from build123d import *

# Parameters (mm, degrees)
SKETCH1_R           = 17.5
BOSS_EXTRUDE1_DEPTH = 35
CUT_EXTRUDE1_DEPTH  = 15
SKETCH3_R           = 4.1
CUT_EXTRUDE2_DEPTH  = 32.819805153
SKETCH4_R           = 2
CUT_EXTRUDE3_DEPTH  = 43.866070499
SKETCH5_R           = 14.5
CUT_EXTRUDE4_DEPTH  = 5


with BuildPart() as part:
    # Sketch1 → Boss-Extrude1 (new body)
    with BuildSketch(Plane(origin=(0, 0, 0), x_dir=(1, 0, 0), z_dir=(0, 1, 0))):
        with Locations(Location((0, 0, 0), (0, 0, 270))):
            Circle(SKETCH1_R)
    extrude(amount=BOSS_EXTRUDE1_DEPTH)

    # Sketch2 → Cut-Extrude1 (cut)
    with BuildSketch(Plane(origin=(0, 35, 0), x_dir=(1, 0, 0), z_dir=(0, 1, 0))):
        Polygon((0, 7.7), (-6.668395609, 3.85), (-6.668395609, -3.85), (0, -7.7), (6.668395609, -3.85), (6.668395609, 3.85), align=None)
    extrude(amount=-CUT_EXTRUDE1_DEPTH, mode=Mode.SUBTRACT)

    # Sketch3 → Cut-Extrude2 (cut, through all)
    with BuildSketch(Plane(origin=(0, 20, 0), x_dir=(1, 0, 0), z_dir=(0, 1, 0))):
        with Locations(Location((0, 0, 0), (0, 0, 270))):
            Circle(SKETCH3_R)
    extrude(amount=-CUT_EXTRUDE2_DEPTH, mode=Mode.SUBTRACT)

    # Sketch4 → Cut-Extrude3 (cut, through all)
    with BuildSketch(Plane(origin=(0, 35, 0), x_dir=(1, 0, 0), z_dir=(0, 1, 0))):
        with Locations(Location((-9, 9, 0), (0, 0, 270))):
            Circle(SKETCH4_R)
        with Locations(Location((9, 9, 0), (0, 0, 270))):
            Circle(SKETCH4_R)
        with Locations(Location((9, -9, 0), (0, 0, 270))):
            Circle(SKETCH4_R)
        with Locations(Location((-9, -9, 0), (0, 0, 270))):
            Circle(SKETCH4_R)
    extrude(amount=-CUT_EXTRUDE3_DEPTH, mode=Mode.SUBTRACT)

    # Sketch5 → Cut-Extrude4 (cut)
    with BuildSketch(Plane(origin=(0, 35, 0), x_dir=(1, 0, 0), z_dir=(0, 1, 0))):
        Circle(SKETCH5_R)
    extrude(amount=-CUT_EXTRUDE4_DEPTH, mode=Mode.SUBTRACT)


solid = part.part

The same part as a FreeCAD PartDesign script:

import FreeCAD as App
import Part
import Sketcher
from FreeCAD import Vector
Q = App.Units.Quantity

doc = App.newDocument("Part")
body = doc.addObject("PartDesign::Body", "Body")

# Sketch on XZ plane
sketch1 = body.newObject("Sketcher::SketchObject", "Sketch")
sketch1.AttachmentSupport = (doc.getObject("XZ_Plane"), [""])
sketch1.MapMode = "FlatFace"
sketch1.addGeometry(Part.Circle(Vector(0, 0, 0), Vector(0, 0, 1), 17.5), False)
sketch1.addConstraint([
    Sketcher.Constraint("Coincident", 0, 3, -1, 1),
    Sketcher.Constraint("Diameter", 0, Q("35 mm")),
])
pad1 = body.newObject("PartDesign::Pad", "Pad")
pad1.Profile = sketch1
pad1.Length = 35
pad1.Reversed = True

# Sketch on XZ plane
sketch2 = body.newObject("Sketcher::SketchObject", "Sketch001")
sketch2.AttachmentSupport = (doc.getObject("XZ_Plane"), [""])
sketch2.MapMode = "FlatFace"
sketch2.AttachmentOffset = App.Placement(Vector(0, 0, -35), App.Rotation())
sketch2.addGeometry([
    Part.LineSegment(Vector(0, -7.7, 0), Vector(-6.668396, -3.85, 0)),  # 0
    Part.LineSegment(Vector(-6.668396, -3.85, 0), Vector(-6.668396, 3.85, 0)),  # 1
    Part.LineSegment(Vector(-6.668396, 3.85, 0), Vector(0, 7.7, 0)),  # 2
    Part.LineSegment(Vector(0, 7.7, 0), Vector(6.668396, 3.85, 0)),  # 3
    Part.LineSegment(Vector(6.668396, 3.85, 0), Vector(6.668396, -3.85, 0)),  # 4
    Part.LineSegment(Vector(6.668396, -3.85, 0), Vector(0, -7.7, 0)),  # 5
], False)
sketch2.addConstraint([
    Sketcher.Constraint("Coincident", 0, 2, 1, 1),
    Sketcher.Constraint("Coincident", 1, 2, 2, 1),
    Sketcher.Constraint("Coincident", 2, 2, 3, 1),
    Sketcher.Constraint("Coincident", 3, 2, 4, 1),
    Sketcher.Constraint("Coincident", 4, 2, 5, 1),
    Sketcher.Constraint("Coincident", 5, 2, 0, 1),
    Sketcher.Constraint("Vertical", 1),
    Sketcher.Constraint("Vertical", 4),
    Sketcher.Constraint("Symmetric", 0, 2, 3, 2, -1, 1),
    Sketcher.Constraint("Symmetric", 2, 2, 5, 2, -1, 1),
    Sketcher.Constraint("PointOnObject", 2, 2, -2),
    Sketcher.Constraint("Parallel", 2, 5),
    Sketcher.Constraint("Horizontal", 1, 2, 3, 2),
    Sketcher.Constraint("Angle", 0, Q("150 deg")),
    Sketcher.Constraint("DistanceY", 1, 1, 1, 2, Q("7.7 mm")),
    Sketcher.Constraint("Distance", 0, Q("7.7 mm")),
])
pocket1 = body.newObject("PartDesign::Pocket", "Pocket")
pocket1.Profile = sketch2
pocket1.Length = 15
pocket1.Reversed = True

# Sketch on XZ plane
sketch3 = body.newObject("Sketcher::SketchObject", "Sketch002")
sketch3.AttachmentSupport = (doc.getObject("XZ_Plane"), [""])
sketch3.MapMode = "FlatFace"
sketch3.AttachmentOffset = App.Placement(Vector(0, 0, -20), App.Rotation())
sketch3.addGeometry(Part.Circle(Vector(0, 0, 0), Vector(0, 0, 1), 4.1), False)
sketch3.addConstraint([
    Sketcher.Constraint("Coincident", 0, 3, -1, 1),
    Sketcher.Constraint("Diameter", 0, Q("8.2 mm")),
])
pocket2 = body.newObject("PartDesign::Pocket", "Pocket001")
pocket2.Profile = sketch3
pocket2.Type = "ThroughAll"
pocket2.Reversed = True

# Sketch on XZ plane
sketch4 = body.newObject("Sketcher::SketchObject", "Sketch003")
sketch4.AttachmentSupport = (doc.getObject("XZ_Plane"), [""])
sketch4.MapMode = "FlatFace"
sketch4.AttachmentOffset = App.Placement(Vector(0, 0, -35), App.Rotation())
sketch4.addGeometry([
    Part.Circle(Vector(-9, -9, 0), Vector(0, 0, 1), 2),
    Part.Circle(Vector(9, -9, 0), Vector(0, 0, 1), 2),
    Part.Circle(Vector(9, 9, 0), Vector(0, 0, 1), 2),
    Part.Circle(Vector(-9, 9, 0), Vector(0, 0, 1), 2),
], False)
sketch4.addConstraint([
    Sketcher.Constraint("Equal", 0, 1),
    Sketcher.Constraint("Equal", 1, 2),
    Sketcher.Constraint("Equal", 2, 3),
    Sketcher.Constraint("Symmetric", 0, 3, 2, 3, -1, 1),
    Sketcher.Constraint("Symmetric", 1, 3, 3, 3, -1, 1),
    Sketcher.Constraint("Symmetric", 0, 3, 1, 3, -2),
    Sketcher.Constraint("Diameter", 0, Q("4 mm")),
    Sketcher.Constraint("DistanceX", 0, 3, -1, 1, Q("9 mm")),
    Sketcher.Constraint("DistanceY", 0, 3, -1, 1, Q("9 mm")),
])
pocket3 = body.newObject("PartDesign::Pocket", "Pocket002")
pocket3.Profile = sketch4
pocket3.Type = "ThroughAll"
pocket3.Reversed = True

# Sketch on XZ plane
sketch5 = body.newObject("Sketcher::SketchObject", "Sketch004")
sketch5.AttachmentSupport = (doc.getObject("XZ_Plane"), [""])
sketch5.MapMode = "FlatFace"
sketch5.AttachmentOffset = App.Placement(Vector(0, 0, -35), App.Rotation())
sketch5.addGeometry(Part.Circle(Vector(0, 0, 0), Vector(0, 0, 1), 14.5), False)
sketch5.addConstraint([
    Sketcher.Constraint("Coincident", 0, 3, -1, 1),
    Sketcher.Constraint("Diameter", 0, Q("29 mm")),
])
pocket4 = body.newObject("PartDesign::Pocket", "Pocket003")
pocket4.Profile = sketch5
pocket4.Length = 5
pocket4.Reversed = True

doc.recompute()
